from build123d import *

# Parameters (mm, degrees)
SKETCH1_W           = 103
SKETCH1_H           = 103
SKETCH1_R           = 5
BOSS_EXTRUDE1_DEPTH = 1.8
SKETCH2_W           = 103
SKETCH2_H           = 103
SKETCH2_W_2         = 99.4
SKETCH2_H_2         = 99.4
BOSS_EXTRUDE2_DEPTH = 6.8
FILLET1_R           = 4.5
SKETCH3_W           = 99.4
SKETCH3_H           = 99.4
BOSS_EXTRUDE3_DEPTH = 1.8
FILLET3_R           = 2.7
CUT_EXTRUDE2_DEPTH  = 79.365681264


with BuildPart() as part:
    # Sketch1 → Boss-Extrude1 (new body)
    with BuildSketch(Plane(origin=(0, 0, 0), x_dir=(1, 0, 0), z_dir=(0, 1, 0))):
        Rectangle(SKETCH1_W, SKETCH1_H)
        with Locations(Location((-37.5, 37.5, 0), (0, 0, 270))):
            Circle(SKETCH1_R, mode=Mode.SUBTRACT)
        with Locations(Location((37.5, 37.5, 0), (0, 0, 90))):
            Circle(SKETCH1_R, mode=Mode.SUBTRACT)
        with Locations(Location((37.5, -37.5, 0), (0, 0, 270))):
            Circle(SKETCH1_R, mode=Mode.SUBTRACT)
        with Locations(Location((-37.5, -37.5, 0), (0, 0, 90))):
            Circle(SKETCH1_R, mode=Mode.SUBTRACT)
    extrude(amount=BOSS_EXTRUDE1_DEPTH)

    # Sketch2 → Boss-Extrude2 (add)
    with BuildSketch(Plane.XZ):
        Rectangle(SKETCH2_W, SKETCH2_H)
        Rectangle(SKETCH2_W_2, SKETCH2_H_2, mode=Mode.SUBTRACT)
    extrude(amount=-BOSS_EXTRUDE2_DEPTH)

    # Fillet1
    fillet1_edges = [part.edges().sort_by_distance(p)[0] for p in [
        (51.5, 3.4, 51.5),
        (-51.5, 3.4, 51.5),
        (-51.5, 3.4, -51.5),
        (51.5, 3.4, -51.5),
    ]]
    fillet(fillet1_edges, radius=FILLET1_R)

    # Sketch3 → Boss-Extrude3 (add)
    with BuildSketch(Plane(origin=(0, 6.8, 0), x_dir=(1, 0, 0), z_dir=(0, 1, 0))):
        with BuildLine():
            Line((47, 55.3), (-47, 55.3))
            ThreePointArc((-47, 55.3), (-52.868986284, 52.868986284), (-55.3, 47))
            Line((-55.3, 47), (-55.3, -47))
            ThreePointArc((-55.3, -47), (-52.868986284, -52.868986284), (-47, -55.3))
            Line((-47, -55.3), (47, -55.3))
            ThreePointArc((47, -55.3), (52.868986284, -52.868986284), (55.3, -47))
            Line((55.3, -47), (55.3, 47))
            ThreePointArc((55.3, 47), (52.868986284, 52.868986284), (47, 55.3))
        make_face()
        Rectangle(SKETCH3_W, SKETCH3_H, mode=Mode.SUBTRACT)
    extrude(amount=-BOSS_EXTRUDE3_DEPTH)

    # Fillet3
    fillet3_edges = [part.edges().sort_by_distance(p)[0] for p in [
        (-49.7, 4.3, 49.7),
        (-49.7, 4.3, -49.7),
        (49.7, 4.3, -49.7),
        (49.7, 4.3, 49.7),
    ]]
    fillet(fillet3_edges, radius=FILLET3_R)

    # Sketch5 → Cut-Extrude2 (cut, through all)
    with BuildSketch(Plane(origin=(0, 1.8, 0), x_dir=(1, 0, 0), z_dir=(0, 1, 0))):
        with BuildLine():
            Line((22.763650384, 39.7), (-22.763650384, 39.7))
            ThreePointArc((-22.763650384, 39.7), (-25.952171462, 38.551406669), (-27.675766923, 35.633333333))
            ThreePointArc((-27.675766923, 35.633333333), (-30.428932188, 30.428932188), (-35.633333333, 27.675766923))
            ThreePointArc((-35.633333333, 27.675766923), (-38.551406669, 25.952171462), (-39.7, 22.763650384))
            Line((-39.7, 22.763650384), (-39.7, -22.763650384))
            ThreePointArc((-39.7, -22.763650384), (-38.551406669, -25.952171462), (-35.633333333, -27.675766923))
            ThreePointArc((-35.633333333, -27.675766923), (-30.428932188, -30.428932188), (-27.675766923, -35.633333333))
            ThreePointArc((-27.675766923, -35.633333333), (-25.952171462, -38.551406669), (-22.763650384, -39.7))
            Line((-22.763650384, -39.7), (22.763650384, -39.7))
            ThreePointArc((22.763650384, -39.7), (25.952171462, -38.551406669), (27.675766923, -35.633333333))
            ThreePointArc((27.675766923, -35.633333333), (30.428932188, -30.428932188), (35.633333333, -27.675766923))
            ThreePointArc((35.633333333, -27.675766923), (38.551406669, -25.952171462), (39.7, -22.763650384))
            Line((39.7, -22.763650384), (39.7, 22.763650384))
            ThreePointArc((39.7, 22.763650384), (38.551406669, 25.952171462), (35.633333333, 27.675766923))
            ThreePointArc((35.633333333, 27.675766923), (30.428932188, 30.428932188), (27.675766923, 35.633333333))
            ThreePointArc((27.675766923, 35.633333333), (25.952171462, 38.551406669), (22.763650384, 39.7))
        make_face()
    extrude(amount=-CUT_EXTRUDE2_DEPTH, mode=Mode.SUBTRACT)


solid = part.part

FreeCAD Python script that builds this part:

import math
import FreeCAD as App
import Part
import Sketcher
from FreeCAD import Vector


def edges_at(feature, points):
    """Names of the edges that pass closest to the given points."""
    edges = feature.Shape.Edges
    near = lambda p: min(range(len(edges)), key=lambda i: edges[i].distToShape(Part.Vertex(*p))[0])
    return sorted({f"Edge{near(p) + 1}" for p in points})

doc = App.newDocument("Part")
body = doc.addObject("PartDesign::Body", "Body")

# Sketch on XZ plane
sketch1 = body.newObject("Sketcher::SketchObject", "Sketch")
sketch1.AttachmentSupport = (doc.getObject("XZ_Plane"), [""])
sketch1.MapMode = "FlatFace"
sketch1.addGeometry(Part.LineSegment(Vector(-52, -52, 0), Vector(-52, 52, 0)), False)
sketch1.addGeometry(Part.LineSegment(Vector(-52, 52, 0), Vector(52, 52, 0)), False)
sketch1.addGeometry(Part.LineSegment(Vector(52, 52, 0), Vector(52, -52, 0)), False)
sketch1.addGeometry(Part.LineSegment(Vector(52, -52, 0), Vector(-52, -52, 0)), False)
sketch1.addGeometry(Part.Circle(Vector(-38, 38, 0), Vector(0, 0, 1), 5), False)
sketch1.addGeometry(Part.Circle(Vector(38, 38, 0), Vector(0, 0, 1), 5), False)
sketch1.addGeometry(Part.Circle(Vector(-38, -38, 0), Vector(0, 0, 1), 5), False)
sketch1.addGeometry(Part.Circle(Vector(38, -38, 0), Vector(0, 0, 1), 5), False)
sketch1.addConstraint(Sketcher.Constraint("Coincident", 0, 2, 1, 1))
sketch1.addConstraint(Sketcher.Constraint("Coincident", 1, 2, 2, 1))
sketch1.addConstraint(Sketcher.Constraint("Coincident", 2, 2, 3, 1))
sketch1.addConstraint(Sketcher.Constraint("Coincident", 3, 2, 0, 1))
sketch1.addConstraint(Sketcher.Constraint("Vertical", 0))
sketch1.addConstraint(Sketcher.Constraint("Horizontal", 1))
sketch1.addConstraint(Sketcher.Constraint("Vertical", 2))
sketch1.addConstraint(Sketcher.Constraint("Horizontal", 3))
sketch1.addConstraint(Sketcher.Constraint("Equal", 4, 5))
sketch1.addConstraint(Sketcher.Constraint("Equal", 5, 6))
sketch1.addConstraint(Sketcher.Constraint("Equal", 6, 7))
sketch1.addConstraint(Sketcher.Constraint("Symmetric", 5, 3, 6, 3, -1, 1))
sketch1.addConstraint(Sketcher.Constraint("Symmetric", 4, 3, 7, 3, -1, 1))
sketch1.addConstraint(Sketcher.Constraint("Symmetric", 0, 2, 2, 2, -1, 1))
sketch1.addConstraint(Sketcher.Constraint("Symmetric", 4, 3, 5, 3, -2))
sketch1.addConstraint(Sketcher.Constraint("Equal", 3, 0))
sketch1.addConstraint(Sketcher.Constraint("Diameter", 4, 10.0))
sketch1.addConstraint(Sketcher.Constraint("DistanceX", 1, 1, 1, 2, 103.0))
sketch1.addConstraint(Sketcher.Constraint("DistanceX", 4, 3, 5, 3, 75.0))
sketch1.addConstraint(Sketcher.Constraint("DistanceY", 6, 3, 4, 3, 75.0))
pad1 = body.newObject("PartDesign::Pad", "Pad")
pad1.Profile = sketch1
pad1.Length = 1.8
pad1.Reversed = True

# Sketch on XZ plane
sketch2 = body.newObject("Sketcher::SketchObject", "Sketch001")
sketch2.AttachmentSupport = (doc.getObject("XZ_Plane"), [""])
sketch2.MapMode = "FlatFace"
sketch2.addGeometry(Part.LineSegment(Vector(-52, 52, 0), Vector(-52, -52, 0)), False)
sketch2.addGeometry(Part.LineSegment(Vector(-52, -52, 0), Vector(52, -52, 0)), False)
sketch2.addGeometry(Part.LineSegment(Vector(52, -52, 0), Vector(52, 52, 0)), False)
sketch2.addGeometry(Part.LineSegment(Vector(52, 52, 0), Vector(-52, 52, 0)), False)
sketch2.addGeometry(Part.LineSegment(Vector(50, -50, 0), Vector(-50, -50, 0)), False)
sketch2.addGeometry(Part.LineSegment(Vector(-50, -50, 0), Vector(-50, 50, 0)), False)
sketch2.addGeometry(Part.LineSegment(Vector(-50, 50, 0), Vector(50, 50, 0)), False)
sketch2.addGeometry(Part.LineSegment(Vector(50, 50, 0), Vector(50, -50, 0)), False)
sketch2.addConstraint(Sketcher.Constraint("Coincident", 0, 2, 1, 1))
sketch2.addConstraint(Sketcher.Constraint("Coincident", 1, 2, 2, 1))
sketch2.addConstraint(Sketcher.Constraint("Coincident", 2, 2, 3, 1))
sketch2.addConstraint(Sketcher.Constraint("Coincident", 3, 2, 0, 1))
sketch2.addConstraint(Sketcher.Constraint("Coincident", 4, 2, 5, 1))
sketch2.addConstraint(Sketcher.Constraint("Coincident", 5, 2, 6, 1))
sketch2.addConstraint(Sketcher.Constraint("Coincident", 6, 2, 7, 1))
sketch2.addConstraint(Sketcher.Constraint("Coincident", 7, 2, 4, 1))
sketch2.addConstraint(Sketcher.Constraint("Vertical", 0))
sketch2.addConstraint(Sketcher.Constraint("Horizontal", 1))
sketch2.addConstraint(Sketcher.Constraint("Vertical", 2))
sketch2.addConstraint(Sketcher.Constraint("Horizontal", 3))
sketch2.addConstraint(Sketcher.Constraint("Horizontal", 4))
sketch2.addConstraint(Sketcher.Constraint("Vertical", 5))
sketch2.addConstraint(Sketcher.Constraint("Horizontal", 6))
sketch2.addConstraint(Sketcher.Constraint("Vertical", 7))
sketch2.addConstraint(Sketcher.Constraint("Symmetric", 0, 2, 2, 2, -1, 1))
sketch2.addConstraint(Sketcher.Constraint("Symmetric", 4, 2, 6, 2, -1, 1))
sketch2.addConstraint(Sketcher.Constraint("Equal", 3, 0))
sketch2.addConstraint(Sketcher.Constraint("Equal", 6, 5))
sketch2.addConstraint(Sketcher.Constraint("DistanceX", 1, 1, 1, 2, 103.0))
sketch2.addConstraint(Sketcher.Constraint("DistanceX", 4, 2, 4, 1, 99.4))
pad2 = body.newObject("PartDesign::Pad", "Pad001")
pad2.Profile = sketch2
pad2.Length = 6.8
pad2.Reversed = True
doc.recompute()

fillet = body.newObject("PartDesign::Fillet", "Fillet")
fillet.Base = (pad2, edges_at(pad2, [
    (51.5, 3.4, 51.5),
    (-51.5, 3.4, 51.5),
    (-51.5, 3.4, -51.5),
    (51.5, 3.4, -51.5),
]))
fillet.Radius = 4.5

# Sketch on XZ plane
sketch3 = body.newObject("Sketcher::SketchObject", "Sketch002")
sketch3.AttachmentSupport = (doc.getObject("XZ_Plane"), [""])
sketch3.MapMode = "FlatFace"
sketch3.AttachmentOffset = App.Placement(Vector(0, 0, -6.8), App.Rotation())
sketch3.addGeometry(Part.LineSegment(Vector(47, -55, 0), Vector(-47, -55, 0)), False)
sketch3.addGeometry(Part.ArcOfCircle(Part.Circle(Vector(-47, -47, 0), Vector(0, 0, 1), 8), math.radians(180), math.radians(270)), False)
sketch3.addGeometry(Part.LineSegment(Vector(-55, -47, 0), Vector(-55, 47, 0)), False)
sketch3.addGeometry(Part.ArcOfCircle(Part.Circle(Vector(-47, 47, 0), Vector(0, 0, 1), 8), math.radians(90), math.radians(180)), False)
sketch3.addGeometry(Part.LineSegment(Vector(-47, 55, 0), Vector(47, 55, 0)), False)
sketch3.addGeometry(Part.ArcOfCircle(Part.Circle(Vector(47, 47, 0), Vector(0, 0, 1), 8), math.radians(0), math.radians(90)), False)
sketch3.addGeometry(Part.LineSegment(Vector(55, 47, 0), Vector(55, -47, 0)), False)
sketch3.addGeometry(Part.ArcOfCircle(Part.Circle(Vector(47, -47, 0), Vector(0, 0, 1), 8), math.radians(-90), math.radians(0)), False)
sketch3.addGeometry(Part.LineSegment(Vector(50, 50, 0), Vector(-50, 50, 0)), False)
sketch3.addGeometry(Part.LineSegment(Vector(-50, 50, 0), Vector(-50, -50, 0)), False)
sketch3.addGeometry(Part.LineSegment(Vector(-50, -50, 0), Vector(50, -50, 0)), False)
sketch3.addGeometry(Part.LineSegment(Vector(50, -50, 0), Vector(50, 50, 0)), False)
sketch3.addConstraint(Sketcher.Constraint("Tangent", 0, 2, 1, 2))
sketch3.addConstraint(Sketcher.Constraint("Tangent", 1, 1, 2, 1))
sketch3.addConstraint(Sketcher.Constraint("Tangent", 2, 2, 3, 2))
sketch3.addConstraint(Sketcher.Constraint("Tangent", 3, 1, 4, 1))
sketch3.addConstraint(Sketcher.Constraint("Tangent", 4, 2, 5, 2))
sketch3.addConstraint(Sketcher.Constraint("Tangent", 5, 1, 6, 1))
sketch3.addConstraint(Sketcher.Constraint("Tangent", 6, 2, 7, 2))
sketch3.addConstraint(Sketcher.Constraint("Tangent", 7, 1, 0, 1))
sketch3.addConstraint(Sketcher.Constraint("Coincident", 8, 2, 9, 1))
sketch3.addConstraint(Sketcher.Constraint("Coincident", 9, 2, 10, 1))
sketch3.addConstraint(Sketcher.Constraint("Coincident", 10, 2, 11, 1))
sketch3.addConstraint(Sketcher.Constraint("Coincident", 11, 2, 8, 1))
sketch3.addConstraint(Sketcher.Constraint("Horizontal", 0))
sketch3.addConstraint(Sketcher.Constraint("Vertical", 2))
sketch3.addConstraint(Sketcher.Constraint("Horizontal", 4))
sketch3.addConstraint(Sketcher.Constraint("Vertical", 6))
sketch3.addConstraint(Sketcher.Constraint("Horizontal", 8))
sketch3.addConstraint(Sketcher.Constraint("Vertical", 9))
sketch3.addConstraint(Sketcher.Constraint("Horizontal", 10))
sketch3.addConstraint(Sketcher.Constraint("Vertical", 11))
sketch3.addConstraint(Sketcher.Constraint("Equal", 1, 3))
sketch3.addConstraint(Sketcher.Constraint("Equal", 3, 5))
sketch3.addConstraint(Sketcher.Constraint("Equal", 5, 7))
sketch3.addConstraint(Sketcher.Constraint("Symmetric", 1, 3, 5, 3, -1, 1))
sketch3.addConstraint(Sketcher.Constraint("Symmetric", 8, 2, 10, 2, -1, 1))
sketch3.addConstraint(Sketcher.Constraint("Equal", 4, 2))
sketch3.addConstraint(Sketcher.Constraint("Equal", 10, 9))
sketch3.addConstraint(Sketcher.Constraint("Radius", 1, 8.3))
sketch3.addConstraint(Sketcher.Constraint("DistanceX", 0, 2, 0, 1, 94.0))
sketch3.addConstraint(Sketcher.Constraint("DistanceX", 8, 2, 8, 1, 99.4))
pad3 = body.newObject("PartDesign::Pad", "Pad002")
pad3.Profile = sketch3
pad3.Length = 1.8
doc.recompute()

fillet2 = body.newObject("PartDesign::Fillet", "Fillet001")
fillet2.Base = (pad3, edges_at(pad3, [
    (-49.7, 4.3, 49.7),
    (-49.7, 4.3, -49.7),
    (49.7, 4.3, -49.7),
    (49.7, 4.3, 49.7),
]))
fillet2.Radius = 2.7

# Sketch on XZ plane
sketch4 = body.newObject("Sketcher::SketchObject", "Sketch003")
sketch4.AttachmentSupport = (doc.getObject("XZ_Plane"), [""])
sketch4.MapMode = "FlatFace"
sketch4.AttachmentOffset = App.Placement(Vector(0, 0, -1.8), App.Rotation())
sketch4.addGeometry(Part.LineSegment(Vector(23, -40, 0), Vector(-23, -40, 0)), False)
sketch4.addGeometry(Part.ArcOfCircle(Part.Circle(Vector(-23, -35, 0), Vector(0, 0, 1), 5), math.radians(-169), math.radians(-90)), False)
sketch4.addGeometry(Part.ArcOfCircle(Part.Circle(Vector(-37, -37, 0), Vector(0, 0, 1), 10), math.radians(11), math.radians(79)), False)
sketch4.addGeometry(Part.ArcOfCircle(Part.Circle(Vector(-35, -23, 0), Vector(0, 0, 1), 5), math.radians(-180), math.radians(-101)), False)
sketch4.addGeometry(Part.LineSegment(Vector(-40, -23, 0), Vector(-40, 23, 0)), False)
sketch4.addGeometry(Part.ArcOfCircle(Part.Circle(Vector(-35, 23, 0), Vector(0, 0, 1), 5), math.radians(101), math.radians(180)), False)
sketch4.addGeometry(Part.ArcOfCircle(Part.Circle(Vector(-37, 37, 0), Vector(0, 0, 1), 10), math.radians(-79), math.radians(-11)), False)
sketch4.addGeometry(Part.ArcOfCircle(Part.Circle(Vector(-23, 35, 0), Vector(0, 0, 1), 5), math.radians(90), math.radians(169)), False)
sketch4.addGeometry(Part.LineSegment(Vector(-23, 40, 0), Vector(23, 40, 0)), False)
sketch4.addGeometry(Part.ArcOfCircle(Part.Circle(Vector(23, 35, 0), Vector(0, 0, 1), 5), math.radians(11), math.radians(90)), False)
sketch4.addGeometry(Part.ArcOfCircle(Part.Circle(Vector(37, 37, 0), Vector(0, 0, 1), 10), math.radians(-169), math.radians(-101)), False)
sketch4.addGeometry(Part.ArcOfCircle(Part.Circle(Vector(35, 23, 0), Vector(0, 0, 1), 5), math.radians(0), math.radians(79)), False)
sketch4.addGeometry(Part.LineSegment(Vector(40, 23, 0), Vector(40, -23, 0)), False)
sketch4.addGeometry(Part.ArcOfCircle(Part.Circle(Vector(35, -23, 0), Vector(0, 0, 1), 5), math.radians(-79), math.radians(0)), False)
sketch4.addGeometry(Part.ArcOfCircle(Part.Circle(Vector(37, -37, 0), Vector(0, 0, 1), 10), math.radians(101), math.radians(169)), False)
sketch4.addGeometry(Part.ArcOfCircle(Part.Circle(Vector(23, -35, 0), Vector(0, 0, 1), 5), math.radians(-90), math.radians(-11)), False)
sketch4.addConstraint(Sketcher.Constraint("Tangent", 0, 2, 1, 2))
sketch4.addConstraint(Sketcher.Constraint("Tangent", 1, 1, 2, 1))
sketch4.addConstraint(Sketcher.Constraint("Tangent", 2, 2, 3, 2))
sketch4.addConstraint(Sketcher.Constraint("Tangent", 3, 1, 4, 1))
sketch4.addConstraint(Sketcher.Constraint("Tangent", 4, 2, 5, 2))
sketch4.addConstraint(Sketcher.Constraint("Tangent", 5, 1, 6, 1))
sketch4.addConstraint(Sketcher.Constraint("Tangent", 6, 2, 7, 2))
sketch4.addConstraint(Sketcher.Constraint("Tangent", 7, 1, 8, 1))
sketch4.addConstraint(Sketcher.Constraint("Tangent", 8, 2, 9, 2))
sketch4.addConstraint(Sketcher.Constraint("Tangent", 9, 1, 10, 1))
sketch4.addConstraint(Sketcher.Constraint("Tangent", 10, 2, 11, 2))
sketch4.addConstraint(Sketcher.Constraint("Tangent", 11, 1, 12, 1))
sketch4.addConstraint(Sketcher.Constraint("Tangent", 12, 2, 13, 2))
sketch4.addConstraint(Sketcher.Constraint("Tangent", 13, 1, 14, 1))
sketch4.addConstraint(Sketcher.Constraint("Tangent", 14, 2, 15, 2))
sketch4.addConstraint(Sketcher.Constraint("Tangent", 15, 1, 0, 1))
sketch4.addConstraint(Sketcher.Constraint("Horizontal", 0))
sketch4.addConstraint(Sketcher.Constraint("Vertical", 4))
sketch4.addConstraint(Sketcher.Constraint("Horizontal", 8))
sketch4.addConstraint(Sketcher.Constraint("Vertical", 12))
sketch4.addConstraint(Sketcher.Constraint("Equal", 1, 3))
sketch4.addConstraint(Sketcher.Constraint("Equal", 3, 5))
sketch4.addConstraint(Sketcher.Constraint("Equal", 2, 6))
sketch4.addConstraint(Sketcher.Constraint("Equal", 5, 7))
sketch4.addConstraint(Sketcher.Constraint("Equal", 7, 9))
sketch4.addConstraint(Sketcher.Constraint("Equal", 6, 10))
sketch4.addConstraint(Sketcher.Constraint("Equal", 9, 11))
sketch4.addConstraint(Sketcher.Constraint("Equal", 11, 13))
sketch4.addConstraint(Sketcher.Constraint("Equal", 10, 14))
sketch4.addConstraint(Sketcher.Constraint("Equal", 13, 15))
sketch4.addConstraint(Sketcher.Constraint("Symmetric", 1, 3, 9, 3, -1, 1))
sketch4.addConstraint(Sketcher.Constraint("Symmetric", 3, 3, 11, 3, -1, 1))
sketch4.addConstraint(Sketcher.Constraint("Symmetric", 6, 3, 14, 3, -1, 1))
sketch4.addConstraint(Sketcher.Constraint("Symmetric", 6, 3, 10, 3, -2))
sketch4.addConstraint(Sketcher.Constraint("Equal", 8, 4))
sketch4.addConstraint(Sketcher.Constraint("Radius", 1, 5.0))
sketch4.addConstraint(Sketcher.Constraint("Radius", 2, 10.0))
sketch4.addConstraint(Sketcher.Constraint("DistanceY", 2, 3, 6, 3, 75.0))
sketch4.addConstraint(Sketcher.Constraint("DistanceX", 6, 3, 10, 3, 75.0))
sketch4.addConstraint(Sketcher.Constraint("DistanceY", 1, 3, -1, 1, 34.7))
pocket1 = body.newObject("PartDesign::Pocket", "Pocket")
pocket1.Profile = sketch4
pocket1.Type = "ThroughAll"
pocket1.Reversed = True

doc.recompute()
